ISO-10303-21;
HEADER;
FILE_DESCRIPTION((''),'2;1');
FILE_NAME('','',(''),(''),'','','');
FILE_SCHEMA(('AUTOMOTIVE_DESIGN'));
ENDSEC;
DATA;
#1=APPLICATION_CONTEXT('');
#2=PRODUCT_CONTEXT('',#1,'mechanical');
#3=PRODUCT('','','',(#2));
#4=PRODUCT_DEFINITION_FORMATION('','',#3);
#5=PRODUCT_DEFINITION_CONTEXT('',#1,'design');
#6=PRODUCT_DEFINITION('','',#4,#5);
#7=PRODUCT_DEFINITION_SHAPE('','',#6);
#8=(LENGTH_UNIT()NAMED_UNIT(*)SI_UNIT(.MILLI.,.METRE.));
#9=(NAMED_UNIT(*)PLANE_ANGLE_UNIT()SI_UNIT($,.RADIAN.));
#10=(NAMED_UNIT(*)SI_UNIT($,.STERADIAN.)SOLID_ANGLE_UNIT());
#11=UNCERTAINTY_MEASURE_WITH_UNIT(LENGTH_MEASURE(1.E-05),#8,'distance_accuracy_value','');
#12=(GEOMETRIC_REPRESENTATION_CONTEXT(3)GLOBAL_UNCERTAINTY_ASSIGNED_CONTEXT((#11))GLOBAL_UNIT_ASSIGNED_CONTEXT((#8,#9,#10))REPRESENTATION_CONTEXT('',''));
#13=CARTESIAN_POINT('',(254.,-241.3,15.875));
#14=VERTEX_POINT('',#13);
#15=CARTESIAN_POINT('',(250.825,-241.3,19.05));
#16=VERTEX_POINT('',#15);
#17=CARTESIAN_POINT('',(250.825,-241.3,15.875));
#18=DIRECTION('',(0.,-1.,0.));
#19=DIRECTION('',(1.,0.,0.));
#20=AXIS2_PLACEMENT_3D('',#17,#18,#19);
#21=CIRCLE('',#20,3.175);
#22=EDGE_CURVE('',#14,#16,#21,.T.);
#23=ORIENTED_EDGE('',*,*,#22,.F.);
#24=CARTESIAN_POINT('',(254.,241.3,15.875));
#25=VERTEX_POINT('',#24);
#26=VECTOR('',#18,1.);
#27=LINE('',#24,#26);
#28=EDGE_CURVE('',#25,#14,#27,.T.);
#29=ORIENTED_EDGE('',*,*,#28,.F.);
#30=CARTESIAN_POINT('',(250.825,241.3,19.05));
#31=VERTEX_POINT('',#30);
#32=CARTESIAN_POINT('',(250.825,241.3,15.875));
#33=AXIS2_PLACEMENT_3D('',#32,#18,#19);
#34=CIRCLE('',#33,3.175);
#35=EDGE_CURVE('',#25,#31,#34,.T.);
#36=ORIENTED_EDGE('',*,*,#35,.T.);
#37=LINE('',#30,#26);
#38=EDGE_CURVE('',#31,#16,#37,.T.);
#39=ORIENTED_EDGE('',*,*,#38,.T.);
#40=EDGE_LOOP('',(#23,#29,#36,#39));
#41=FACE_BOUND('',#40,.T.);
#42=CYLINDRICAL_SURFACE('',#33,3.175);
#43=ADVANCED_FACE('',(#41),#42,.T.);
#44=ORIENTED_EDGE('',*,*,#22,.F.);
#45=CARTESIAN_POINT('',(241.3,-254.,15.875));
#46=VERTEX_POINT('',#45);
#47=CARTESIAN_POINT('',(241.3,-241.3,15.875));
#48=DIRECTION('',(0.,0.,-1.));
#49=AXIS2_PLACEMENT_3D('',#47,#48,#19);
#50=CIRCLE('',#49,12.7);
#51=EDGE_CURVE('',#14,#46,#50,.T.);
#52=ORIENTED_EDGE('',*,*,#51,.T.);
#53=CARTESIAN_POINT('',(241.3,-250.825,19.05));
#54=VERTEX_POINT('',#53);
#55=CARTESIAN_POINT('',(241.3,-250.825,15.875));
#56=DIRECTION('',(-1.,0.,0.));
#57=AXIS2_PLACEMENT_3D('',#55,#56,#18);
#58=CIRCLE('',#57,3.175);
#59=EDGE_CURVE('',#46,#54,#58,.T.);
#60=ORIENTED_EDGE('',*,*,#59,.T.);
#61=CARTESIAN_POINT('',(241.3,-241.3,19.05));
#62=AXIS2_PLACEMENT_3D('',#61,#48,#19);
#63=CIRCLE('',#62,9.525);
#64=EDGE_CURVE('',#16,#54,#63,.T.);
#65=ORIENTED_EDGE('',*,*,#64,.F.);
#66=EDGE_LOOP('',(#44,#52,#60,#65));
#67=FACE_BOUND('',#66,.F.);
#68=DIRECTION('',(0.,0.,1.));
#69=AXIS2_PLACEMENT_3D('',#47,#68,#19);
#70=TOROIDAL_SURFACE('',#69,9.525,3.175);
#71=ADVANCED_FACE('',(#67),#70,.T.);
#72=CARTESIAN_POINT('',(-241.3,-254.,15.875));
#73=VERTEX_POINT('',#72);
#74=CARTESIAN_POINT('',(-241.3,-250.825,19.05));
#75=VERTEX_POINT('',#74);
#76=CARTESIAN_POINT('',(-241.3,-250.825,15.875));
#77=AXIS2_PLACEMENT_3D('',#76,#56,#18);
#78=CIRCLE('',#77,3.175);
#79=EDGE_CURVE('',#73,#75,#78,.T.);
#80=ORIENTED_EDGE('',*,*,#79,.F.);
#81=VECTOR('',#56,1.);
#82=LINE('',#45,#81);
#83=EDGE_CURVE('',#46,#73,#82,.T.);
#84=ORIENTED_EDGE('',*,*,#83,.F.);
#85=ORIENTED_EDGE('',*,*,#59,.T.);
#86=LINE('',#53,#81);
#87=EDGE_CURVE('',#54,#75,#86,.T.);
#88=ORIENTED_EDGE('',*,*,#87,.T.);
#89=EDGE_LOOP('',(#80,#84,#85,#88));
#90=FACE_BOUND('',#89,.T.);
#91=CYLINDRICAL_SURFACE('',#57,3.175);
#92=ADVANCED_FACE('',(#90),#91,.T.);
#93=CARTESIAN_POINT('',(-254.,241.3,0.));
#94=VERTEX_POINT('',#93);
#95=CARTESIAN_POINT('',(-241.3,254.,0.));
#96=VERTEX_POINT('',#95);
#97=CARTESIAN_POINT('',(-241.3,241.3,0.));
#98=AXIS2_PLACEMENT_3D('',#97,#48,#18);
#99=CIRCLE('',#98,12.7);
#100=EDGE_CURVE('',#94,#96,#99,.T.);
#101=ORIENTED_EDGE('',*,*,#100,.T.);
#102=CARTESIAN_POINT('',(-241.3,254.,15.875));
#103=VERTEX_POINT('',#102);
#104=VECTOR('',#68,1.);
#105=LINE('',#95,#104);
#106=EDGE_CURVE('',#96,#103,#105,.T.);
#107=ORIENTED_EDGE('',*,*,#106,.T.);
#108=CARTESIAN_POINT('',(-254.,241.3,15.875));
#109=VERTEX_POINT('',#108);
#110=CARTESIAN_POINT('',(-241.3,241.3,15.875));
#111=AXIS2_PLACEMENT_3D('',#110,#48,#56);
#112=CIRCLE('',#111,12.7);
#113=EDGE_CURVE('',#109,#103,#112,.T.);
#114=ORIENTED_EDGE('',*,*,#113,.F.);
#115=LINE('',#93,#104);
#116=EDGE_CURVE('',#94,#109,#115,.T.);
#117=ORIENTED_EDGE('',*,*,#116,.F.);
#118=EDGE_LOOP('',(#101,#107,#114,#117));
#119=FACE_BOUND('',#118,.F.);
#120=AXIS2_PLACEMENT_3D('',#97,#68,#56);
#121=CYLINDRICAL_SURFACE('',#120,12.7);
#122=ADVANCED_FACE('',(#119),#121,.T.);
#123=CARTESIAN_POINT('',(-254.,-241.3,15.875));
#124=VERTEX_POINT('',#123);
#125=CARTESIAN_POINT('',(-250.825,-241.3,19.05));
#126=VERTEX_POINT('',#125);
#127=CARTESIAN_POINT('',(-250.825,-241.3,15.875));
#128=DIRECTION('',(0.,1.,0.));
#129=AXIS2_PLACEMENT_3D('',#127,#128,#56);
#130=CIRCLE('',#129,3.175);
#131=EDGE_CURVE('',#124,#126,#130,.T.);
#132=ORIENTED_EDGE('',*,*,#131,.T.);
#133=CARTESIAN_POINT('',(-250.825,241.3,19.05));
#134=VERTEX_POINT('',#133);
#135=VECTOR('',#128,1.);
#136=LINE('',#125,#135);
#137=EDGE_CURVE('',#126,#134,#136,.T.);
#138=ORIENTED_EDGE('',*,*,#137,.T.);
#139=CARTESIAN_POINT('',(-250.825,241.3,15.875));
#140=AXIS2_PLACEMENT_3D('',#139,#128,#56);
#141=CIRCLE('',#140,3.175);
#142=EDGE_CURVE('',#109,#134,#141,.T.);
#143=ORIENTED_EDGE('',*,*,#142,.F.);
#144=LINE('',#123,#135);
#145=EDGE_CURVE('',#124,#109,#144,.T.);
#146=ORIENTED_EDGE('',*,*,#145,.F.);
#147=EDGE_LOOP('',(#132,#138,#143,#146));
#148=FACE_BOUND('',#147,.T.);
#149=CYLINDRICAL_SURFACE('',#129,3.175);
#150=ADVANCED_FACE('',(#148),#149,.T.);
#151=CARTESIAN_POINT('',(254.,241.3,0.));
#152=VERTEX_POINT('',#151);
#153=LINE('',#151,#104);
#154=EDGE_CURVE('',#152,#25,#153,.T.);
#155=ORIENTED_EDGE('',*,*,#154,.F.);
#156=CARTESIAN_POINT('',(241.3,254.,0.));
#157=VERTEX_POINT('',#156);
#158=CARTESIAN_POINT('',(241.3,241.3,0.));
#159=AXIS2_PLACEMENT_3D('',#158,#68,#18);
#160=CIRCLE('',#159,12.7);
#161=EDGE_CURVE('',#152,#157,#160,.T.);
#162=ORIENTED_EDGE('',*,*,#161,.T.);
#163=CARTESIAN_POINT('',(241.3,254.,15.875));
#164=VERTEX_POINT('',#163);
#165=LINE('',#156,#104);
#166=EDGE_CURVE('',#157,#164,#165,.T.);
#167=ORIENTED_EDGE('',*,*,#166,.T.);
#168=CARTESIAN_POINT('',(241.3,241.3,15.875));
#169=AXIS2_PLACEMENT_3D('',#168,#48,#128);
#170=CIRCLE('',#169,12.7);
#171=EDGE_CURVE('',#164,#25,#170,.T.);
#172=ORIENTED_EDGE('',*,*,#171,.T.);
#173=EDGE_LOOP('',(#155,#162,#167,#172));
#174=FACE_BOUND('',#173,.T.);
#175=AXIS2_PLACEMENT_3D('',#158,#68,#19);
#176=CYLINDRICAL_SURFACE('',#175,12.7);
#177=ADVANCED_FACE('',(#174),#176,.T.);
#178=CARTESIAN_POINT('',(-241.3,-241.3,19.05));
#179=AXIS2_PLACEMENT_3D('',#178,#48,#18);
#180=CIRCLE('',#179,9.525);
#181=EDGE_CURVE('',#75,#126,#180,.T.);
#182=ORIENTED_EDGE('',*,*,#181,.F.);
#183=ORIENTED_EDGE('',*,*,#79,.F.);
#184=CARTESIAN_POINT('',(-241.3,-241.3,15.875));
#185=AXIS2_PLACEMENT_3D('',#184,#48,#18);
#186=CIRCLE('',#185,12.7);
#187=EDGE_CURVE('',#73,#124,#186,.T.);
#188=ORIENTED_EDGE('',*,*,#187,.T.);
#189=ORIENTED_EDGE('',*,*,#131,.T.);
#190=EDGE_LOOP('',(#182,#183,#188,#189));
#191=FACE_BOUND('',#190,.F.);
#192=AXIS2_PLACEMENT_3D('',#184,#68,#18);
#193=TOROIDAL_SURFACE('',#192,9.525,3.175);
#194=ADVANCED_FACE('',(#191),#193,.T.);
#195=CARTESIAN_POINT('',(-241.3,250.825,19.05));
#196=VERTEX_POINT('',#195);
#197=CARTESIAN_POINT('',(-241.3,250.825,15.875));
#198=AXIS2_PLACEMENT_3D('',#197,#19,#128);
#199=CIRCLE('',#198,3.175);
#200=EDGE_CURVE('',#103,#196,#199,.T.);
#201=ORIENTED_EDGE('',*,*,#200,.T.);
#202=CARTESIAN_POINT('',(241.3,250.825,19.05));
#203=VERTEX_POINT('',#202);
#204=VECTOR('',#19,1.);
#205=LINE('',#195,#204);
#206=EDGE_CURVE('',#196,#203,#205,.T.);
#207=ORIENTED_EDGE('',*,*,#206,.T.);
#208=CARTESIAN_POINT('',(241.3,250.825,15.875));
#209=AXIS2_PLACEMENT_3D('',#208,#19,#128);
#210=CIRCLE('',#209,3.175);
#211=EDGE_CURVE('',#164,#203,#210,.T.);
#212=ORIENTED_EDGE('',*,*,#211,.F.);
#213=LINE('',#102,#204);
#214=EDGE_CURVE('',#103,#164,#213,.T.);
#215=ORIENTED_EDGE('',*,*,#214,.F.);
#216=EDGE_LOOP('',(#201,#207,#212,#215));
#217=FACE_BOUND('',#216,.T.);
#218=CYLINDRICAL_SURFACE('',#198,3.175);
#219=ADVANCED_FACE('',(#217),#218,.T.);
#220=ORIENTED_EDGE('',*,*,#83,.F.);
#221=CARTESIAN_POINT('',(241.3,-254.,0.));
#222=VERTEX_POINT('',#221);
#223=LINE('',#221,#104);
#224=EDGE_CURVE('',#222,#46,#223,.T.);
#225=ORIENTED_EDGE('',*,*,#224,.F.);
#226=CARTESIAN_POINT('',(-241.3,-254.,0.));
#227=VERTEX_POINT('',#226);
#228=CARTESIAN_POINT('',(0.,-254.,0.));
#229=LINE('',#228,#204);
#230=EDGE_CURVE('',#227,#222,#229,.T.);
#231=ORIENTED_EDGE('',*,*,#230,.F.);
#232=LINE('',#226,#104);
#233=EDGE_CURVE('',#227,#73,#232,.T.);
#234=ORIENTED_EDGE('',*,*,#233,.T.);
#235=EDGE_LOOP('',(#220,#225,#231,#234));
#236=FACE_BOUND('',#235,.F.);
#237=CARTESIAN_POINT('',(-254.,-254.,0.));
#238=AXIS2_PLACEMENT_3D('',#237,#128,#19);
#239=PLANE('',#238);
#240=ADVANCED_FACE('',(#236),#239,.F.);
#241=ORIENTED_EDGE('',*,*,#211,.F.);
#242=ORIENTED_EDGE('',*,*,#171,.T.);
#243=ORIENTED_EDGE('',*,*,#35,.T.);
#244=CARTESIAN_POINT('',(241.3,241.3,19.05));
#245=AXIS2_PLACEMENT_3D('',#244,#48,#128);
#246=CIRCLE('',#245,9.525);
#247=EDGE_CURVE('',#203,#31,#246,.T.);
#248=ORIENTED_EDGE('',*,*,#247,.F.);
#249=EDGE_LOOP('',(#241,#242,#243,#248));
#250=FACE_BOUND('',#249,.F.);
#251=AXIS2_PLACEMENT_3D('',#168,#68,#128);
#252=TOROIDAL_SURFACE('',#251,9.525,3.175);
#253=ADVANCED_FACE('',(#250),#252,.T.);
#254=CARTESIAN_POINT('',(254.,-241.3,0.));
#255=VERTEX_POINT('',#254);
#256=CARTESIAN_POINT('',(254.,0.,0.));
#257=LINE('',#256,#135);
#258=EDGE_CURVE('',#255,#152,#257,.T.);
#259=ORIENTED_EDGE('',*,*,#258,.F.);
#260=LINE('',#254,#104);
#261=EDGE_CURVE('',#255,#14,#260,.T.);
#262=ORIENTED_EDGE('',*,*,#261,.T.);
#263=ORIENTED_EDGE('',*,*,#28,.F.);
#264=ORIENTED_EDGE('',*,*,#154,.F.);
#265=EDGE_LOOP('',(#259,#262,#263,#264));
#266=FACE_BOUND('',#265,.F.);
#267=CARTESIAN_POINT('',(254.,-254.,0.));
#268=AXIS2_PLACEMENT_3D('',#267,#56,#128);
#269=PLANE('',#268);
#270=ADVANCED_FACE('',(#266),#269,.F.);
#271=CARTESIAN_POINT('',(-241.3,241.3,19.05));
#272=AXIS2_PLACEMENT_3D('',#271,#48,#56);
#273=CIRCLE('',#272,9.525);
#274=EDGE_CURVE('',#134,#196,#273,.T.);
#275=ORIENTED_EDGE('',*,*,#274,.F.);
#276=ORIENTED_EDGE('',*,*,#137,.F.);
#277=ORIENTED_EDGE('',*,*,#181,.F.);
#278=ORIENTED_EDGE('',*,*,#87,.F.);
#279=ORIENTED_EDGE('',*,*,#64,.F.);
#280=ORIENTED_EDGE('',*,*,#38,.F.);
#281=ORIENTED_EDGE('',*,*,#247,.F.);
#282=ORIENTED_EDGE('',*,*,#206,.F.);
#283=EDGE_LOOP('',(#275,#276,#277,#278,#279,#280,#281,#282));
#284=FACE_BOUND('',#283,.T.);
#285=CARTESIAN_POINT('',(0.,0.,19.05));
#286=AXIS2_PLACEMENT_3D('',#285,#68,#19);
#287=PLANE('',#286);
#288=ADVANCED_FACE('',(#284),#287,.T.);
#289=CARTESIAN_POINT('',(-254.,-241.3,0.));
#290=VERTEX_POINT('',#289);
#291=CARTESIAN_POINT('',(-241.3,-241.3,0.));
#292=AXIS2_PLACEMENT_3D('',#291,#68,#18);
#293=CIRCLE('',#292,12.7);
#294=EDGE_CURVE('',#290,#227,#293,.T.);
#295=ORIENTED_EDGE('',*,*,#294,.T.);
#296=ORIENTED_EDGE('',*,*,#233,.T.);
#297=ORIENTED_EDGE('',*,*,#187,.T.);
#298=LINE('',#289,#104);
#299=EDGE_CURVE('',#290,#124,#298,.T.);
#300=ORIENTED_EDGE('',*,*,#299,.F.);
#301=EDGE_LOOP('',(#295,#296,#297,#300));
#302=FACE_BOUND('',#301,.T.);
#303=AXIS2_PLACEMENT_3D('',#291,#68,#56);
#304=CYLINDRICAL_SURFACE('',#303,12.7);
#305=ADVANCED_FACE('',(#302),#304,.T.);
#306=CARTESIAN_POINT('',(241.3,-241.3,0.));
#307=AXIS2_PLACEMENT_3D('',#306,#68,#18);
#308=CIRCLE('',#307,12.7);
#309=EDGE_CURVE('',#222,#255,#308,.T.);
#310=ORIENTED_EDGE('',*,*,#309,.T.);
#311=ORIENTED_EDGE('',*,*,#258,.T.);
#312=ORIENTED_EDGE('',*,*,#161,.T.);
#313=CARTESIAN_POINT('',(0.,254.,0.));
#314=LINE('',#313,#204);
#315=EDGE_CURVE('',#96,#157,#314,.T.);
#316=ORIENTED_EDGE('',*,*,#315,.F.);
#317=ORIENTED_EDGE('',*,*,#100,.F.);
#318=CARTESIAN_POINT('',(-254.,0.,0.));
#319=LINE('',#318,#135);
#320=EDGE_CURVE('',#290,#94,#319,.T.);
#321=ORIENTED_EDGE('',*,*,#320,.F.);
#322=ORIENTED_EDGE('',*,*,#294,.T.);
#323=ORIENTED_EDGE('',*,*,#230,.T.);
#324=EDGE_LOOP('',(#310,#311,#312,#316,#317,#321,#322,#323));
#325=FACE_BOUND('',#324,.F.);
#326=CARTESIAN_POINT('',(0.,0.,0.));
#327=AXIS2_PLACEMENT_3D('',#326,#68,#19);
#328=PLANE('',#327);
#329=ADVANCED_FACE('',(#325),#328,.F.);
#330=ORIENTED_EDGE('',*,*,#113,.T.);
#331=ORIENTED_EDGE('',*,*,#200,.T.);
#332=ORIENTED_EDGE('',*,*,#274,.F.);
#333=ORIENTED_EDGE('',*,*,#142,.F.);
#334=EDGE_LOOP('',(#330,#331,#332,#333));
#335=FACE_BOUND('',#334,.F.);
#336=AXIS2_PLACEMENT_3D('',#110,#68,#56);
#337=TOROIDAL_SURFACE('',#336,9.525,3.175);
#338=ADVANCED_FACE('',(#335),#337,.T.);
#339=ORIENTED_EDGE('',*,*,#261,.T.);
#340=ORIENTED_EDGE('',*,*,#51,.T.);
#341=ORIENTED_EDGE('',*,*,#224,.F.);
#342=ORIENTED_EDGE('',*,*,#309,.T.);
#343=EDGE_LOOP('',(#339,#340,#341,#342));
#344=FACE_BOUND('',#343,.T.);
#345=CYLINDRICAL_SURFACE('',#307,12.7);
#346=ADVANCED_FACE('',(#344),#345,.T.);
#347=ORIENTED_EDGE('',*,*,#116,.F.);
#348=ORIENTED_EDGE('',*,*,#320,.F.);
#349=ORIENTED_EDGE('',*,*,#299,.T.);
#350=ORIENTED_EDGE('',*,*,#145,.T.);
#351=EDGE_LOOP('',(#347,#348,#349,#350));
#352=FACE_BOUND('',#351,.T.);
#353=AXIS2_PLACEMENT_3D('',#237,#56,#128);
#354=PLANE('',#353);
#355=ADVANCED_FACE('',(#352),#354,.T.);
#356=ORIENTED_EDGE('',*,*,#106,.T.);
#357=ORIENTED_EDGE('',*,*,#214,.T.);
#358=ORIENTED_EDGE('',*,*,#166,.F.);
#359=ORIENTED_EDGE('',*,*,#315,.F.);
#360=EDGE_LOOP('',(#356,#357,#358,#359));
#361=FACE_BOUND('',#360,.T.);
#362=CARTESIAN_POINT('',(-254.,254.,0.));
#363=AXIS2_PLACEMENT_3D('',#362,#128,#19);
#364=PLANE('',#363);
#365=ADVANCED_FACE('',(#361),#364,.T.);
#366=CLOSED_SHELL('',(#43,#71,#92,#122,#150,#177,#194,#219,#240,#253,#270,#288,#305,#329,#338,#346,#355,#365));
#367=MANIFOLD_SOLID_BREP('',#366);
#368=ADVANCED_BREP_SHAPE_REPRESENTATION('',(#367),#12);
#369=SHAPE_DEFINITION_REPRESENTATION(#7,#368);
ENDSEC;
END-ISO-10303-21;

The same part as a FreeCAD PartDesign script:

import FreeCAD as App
import Part
import Sketcher
Q = App.Units.Quantity


def edges_at(feature, points):
    """Names of the edges that pass closest to the given points."""
    edges = feature.Shape.Edges
    near = lambda p: min(range(len(edges)), key=lambda i: edges[i].distToShape(Part.Vertex(*p))[0])
    return sorted({f"Edge{near(p) + 1}" for p in points})


def add_polygon(sketch, points):
    """Adds a closed chain of lines whose ends are joined by coincident constraints."""
    first, n = sketch.GeometryCount, len(points)
    for a, b in zip(points, points[1:] + points[:1]):
        sketch.addGeometry(Part.LineSegment(App.Vector(*a, 0), App.Vector(*b, 0)), False)
    for i in range(n):
        sketch.addConstraint(Sketcher.Constraint("Coincident", first + i, 2, first + (i + 1) % n, 1))

doc = App.newDocument("Part")
body = doc.addObject("PartDesign::Body", "Body")

# Sketch on XY plane
sketch1 = body.newObject("Sketcher::SketchObject", "Sketch")
sketch1.AttachmentSupport = (doc.getObject("XY_Plane"), [""])
sketch1.MapMode = "FlatFace"
add_polygon(sketch1, [(-254, 254), (-254, -254), (254, -254), (254, 254)])  # lines 0-3
sketch1.addConstraint([
    Sketcher.Constraint("Vertical", 0),
    Sketcher.Constraint("Horizontal", 1),
    Sketcher.Constraint("Vertical", 2),
    Sketcher.Constraint("Horizontal", 3),
    Sketcher.Constraint("Symmetric", 0, 2, 2, 2, -1, 1),
    Sketcher.Constraint("Equal", 3, 0),
    Sketcher.Constraint("DistanceX", 1, 1, 1, 2, Q("20 in")),
])
pad1 = body.newObject("PartDesign::Pad", "Pad")
pad1.Profile = sketch1
pad1.Length = Q("0.75 in")
doc.recompute()

fillet = body.newObject("PartDesign::Fillet", "Fillet")
fillet.Base = (pad1, edges_at(pad1, [
    (-254, 254, 9.525),
    (254, 254, 9.525),
    (-254, -254, 9.525),
    (254, -254, 9.525),
]))
fillet.Radius = Q("0.5 in")
doc.recompute()

fillet2 = body.newObject("PartDesign::Fillet", "Fillet001")
fillet2.Base = (fillet, edges_at(fillet, [(-254, 0, 19.05)]))
fillet2.Radius = Q("0.125 in")

doc.recompute()
